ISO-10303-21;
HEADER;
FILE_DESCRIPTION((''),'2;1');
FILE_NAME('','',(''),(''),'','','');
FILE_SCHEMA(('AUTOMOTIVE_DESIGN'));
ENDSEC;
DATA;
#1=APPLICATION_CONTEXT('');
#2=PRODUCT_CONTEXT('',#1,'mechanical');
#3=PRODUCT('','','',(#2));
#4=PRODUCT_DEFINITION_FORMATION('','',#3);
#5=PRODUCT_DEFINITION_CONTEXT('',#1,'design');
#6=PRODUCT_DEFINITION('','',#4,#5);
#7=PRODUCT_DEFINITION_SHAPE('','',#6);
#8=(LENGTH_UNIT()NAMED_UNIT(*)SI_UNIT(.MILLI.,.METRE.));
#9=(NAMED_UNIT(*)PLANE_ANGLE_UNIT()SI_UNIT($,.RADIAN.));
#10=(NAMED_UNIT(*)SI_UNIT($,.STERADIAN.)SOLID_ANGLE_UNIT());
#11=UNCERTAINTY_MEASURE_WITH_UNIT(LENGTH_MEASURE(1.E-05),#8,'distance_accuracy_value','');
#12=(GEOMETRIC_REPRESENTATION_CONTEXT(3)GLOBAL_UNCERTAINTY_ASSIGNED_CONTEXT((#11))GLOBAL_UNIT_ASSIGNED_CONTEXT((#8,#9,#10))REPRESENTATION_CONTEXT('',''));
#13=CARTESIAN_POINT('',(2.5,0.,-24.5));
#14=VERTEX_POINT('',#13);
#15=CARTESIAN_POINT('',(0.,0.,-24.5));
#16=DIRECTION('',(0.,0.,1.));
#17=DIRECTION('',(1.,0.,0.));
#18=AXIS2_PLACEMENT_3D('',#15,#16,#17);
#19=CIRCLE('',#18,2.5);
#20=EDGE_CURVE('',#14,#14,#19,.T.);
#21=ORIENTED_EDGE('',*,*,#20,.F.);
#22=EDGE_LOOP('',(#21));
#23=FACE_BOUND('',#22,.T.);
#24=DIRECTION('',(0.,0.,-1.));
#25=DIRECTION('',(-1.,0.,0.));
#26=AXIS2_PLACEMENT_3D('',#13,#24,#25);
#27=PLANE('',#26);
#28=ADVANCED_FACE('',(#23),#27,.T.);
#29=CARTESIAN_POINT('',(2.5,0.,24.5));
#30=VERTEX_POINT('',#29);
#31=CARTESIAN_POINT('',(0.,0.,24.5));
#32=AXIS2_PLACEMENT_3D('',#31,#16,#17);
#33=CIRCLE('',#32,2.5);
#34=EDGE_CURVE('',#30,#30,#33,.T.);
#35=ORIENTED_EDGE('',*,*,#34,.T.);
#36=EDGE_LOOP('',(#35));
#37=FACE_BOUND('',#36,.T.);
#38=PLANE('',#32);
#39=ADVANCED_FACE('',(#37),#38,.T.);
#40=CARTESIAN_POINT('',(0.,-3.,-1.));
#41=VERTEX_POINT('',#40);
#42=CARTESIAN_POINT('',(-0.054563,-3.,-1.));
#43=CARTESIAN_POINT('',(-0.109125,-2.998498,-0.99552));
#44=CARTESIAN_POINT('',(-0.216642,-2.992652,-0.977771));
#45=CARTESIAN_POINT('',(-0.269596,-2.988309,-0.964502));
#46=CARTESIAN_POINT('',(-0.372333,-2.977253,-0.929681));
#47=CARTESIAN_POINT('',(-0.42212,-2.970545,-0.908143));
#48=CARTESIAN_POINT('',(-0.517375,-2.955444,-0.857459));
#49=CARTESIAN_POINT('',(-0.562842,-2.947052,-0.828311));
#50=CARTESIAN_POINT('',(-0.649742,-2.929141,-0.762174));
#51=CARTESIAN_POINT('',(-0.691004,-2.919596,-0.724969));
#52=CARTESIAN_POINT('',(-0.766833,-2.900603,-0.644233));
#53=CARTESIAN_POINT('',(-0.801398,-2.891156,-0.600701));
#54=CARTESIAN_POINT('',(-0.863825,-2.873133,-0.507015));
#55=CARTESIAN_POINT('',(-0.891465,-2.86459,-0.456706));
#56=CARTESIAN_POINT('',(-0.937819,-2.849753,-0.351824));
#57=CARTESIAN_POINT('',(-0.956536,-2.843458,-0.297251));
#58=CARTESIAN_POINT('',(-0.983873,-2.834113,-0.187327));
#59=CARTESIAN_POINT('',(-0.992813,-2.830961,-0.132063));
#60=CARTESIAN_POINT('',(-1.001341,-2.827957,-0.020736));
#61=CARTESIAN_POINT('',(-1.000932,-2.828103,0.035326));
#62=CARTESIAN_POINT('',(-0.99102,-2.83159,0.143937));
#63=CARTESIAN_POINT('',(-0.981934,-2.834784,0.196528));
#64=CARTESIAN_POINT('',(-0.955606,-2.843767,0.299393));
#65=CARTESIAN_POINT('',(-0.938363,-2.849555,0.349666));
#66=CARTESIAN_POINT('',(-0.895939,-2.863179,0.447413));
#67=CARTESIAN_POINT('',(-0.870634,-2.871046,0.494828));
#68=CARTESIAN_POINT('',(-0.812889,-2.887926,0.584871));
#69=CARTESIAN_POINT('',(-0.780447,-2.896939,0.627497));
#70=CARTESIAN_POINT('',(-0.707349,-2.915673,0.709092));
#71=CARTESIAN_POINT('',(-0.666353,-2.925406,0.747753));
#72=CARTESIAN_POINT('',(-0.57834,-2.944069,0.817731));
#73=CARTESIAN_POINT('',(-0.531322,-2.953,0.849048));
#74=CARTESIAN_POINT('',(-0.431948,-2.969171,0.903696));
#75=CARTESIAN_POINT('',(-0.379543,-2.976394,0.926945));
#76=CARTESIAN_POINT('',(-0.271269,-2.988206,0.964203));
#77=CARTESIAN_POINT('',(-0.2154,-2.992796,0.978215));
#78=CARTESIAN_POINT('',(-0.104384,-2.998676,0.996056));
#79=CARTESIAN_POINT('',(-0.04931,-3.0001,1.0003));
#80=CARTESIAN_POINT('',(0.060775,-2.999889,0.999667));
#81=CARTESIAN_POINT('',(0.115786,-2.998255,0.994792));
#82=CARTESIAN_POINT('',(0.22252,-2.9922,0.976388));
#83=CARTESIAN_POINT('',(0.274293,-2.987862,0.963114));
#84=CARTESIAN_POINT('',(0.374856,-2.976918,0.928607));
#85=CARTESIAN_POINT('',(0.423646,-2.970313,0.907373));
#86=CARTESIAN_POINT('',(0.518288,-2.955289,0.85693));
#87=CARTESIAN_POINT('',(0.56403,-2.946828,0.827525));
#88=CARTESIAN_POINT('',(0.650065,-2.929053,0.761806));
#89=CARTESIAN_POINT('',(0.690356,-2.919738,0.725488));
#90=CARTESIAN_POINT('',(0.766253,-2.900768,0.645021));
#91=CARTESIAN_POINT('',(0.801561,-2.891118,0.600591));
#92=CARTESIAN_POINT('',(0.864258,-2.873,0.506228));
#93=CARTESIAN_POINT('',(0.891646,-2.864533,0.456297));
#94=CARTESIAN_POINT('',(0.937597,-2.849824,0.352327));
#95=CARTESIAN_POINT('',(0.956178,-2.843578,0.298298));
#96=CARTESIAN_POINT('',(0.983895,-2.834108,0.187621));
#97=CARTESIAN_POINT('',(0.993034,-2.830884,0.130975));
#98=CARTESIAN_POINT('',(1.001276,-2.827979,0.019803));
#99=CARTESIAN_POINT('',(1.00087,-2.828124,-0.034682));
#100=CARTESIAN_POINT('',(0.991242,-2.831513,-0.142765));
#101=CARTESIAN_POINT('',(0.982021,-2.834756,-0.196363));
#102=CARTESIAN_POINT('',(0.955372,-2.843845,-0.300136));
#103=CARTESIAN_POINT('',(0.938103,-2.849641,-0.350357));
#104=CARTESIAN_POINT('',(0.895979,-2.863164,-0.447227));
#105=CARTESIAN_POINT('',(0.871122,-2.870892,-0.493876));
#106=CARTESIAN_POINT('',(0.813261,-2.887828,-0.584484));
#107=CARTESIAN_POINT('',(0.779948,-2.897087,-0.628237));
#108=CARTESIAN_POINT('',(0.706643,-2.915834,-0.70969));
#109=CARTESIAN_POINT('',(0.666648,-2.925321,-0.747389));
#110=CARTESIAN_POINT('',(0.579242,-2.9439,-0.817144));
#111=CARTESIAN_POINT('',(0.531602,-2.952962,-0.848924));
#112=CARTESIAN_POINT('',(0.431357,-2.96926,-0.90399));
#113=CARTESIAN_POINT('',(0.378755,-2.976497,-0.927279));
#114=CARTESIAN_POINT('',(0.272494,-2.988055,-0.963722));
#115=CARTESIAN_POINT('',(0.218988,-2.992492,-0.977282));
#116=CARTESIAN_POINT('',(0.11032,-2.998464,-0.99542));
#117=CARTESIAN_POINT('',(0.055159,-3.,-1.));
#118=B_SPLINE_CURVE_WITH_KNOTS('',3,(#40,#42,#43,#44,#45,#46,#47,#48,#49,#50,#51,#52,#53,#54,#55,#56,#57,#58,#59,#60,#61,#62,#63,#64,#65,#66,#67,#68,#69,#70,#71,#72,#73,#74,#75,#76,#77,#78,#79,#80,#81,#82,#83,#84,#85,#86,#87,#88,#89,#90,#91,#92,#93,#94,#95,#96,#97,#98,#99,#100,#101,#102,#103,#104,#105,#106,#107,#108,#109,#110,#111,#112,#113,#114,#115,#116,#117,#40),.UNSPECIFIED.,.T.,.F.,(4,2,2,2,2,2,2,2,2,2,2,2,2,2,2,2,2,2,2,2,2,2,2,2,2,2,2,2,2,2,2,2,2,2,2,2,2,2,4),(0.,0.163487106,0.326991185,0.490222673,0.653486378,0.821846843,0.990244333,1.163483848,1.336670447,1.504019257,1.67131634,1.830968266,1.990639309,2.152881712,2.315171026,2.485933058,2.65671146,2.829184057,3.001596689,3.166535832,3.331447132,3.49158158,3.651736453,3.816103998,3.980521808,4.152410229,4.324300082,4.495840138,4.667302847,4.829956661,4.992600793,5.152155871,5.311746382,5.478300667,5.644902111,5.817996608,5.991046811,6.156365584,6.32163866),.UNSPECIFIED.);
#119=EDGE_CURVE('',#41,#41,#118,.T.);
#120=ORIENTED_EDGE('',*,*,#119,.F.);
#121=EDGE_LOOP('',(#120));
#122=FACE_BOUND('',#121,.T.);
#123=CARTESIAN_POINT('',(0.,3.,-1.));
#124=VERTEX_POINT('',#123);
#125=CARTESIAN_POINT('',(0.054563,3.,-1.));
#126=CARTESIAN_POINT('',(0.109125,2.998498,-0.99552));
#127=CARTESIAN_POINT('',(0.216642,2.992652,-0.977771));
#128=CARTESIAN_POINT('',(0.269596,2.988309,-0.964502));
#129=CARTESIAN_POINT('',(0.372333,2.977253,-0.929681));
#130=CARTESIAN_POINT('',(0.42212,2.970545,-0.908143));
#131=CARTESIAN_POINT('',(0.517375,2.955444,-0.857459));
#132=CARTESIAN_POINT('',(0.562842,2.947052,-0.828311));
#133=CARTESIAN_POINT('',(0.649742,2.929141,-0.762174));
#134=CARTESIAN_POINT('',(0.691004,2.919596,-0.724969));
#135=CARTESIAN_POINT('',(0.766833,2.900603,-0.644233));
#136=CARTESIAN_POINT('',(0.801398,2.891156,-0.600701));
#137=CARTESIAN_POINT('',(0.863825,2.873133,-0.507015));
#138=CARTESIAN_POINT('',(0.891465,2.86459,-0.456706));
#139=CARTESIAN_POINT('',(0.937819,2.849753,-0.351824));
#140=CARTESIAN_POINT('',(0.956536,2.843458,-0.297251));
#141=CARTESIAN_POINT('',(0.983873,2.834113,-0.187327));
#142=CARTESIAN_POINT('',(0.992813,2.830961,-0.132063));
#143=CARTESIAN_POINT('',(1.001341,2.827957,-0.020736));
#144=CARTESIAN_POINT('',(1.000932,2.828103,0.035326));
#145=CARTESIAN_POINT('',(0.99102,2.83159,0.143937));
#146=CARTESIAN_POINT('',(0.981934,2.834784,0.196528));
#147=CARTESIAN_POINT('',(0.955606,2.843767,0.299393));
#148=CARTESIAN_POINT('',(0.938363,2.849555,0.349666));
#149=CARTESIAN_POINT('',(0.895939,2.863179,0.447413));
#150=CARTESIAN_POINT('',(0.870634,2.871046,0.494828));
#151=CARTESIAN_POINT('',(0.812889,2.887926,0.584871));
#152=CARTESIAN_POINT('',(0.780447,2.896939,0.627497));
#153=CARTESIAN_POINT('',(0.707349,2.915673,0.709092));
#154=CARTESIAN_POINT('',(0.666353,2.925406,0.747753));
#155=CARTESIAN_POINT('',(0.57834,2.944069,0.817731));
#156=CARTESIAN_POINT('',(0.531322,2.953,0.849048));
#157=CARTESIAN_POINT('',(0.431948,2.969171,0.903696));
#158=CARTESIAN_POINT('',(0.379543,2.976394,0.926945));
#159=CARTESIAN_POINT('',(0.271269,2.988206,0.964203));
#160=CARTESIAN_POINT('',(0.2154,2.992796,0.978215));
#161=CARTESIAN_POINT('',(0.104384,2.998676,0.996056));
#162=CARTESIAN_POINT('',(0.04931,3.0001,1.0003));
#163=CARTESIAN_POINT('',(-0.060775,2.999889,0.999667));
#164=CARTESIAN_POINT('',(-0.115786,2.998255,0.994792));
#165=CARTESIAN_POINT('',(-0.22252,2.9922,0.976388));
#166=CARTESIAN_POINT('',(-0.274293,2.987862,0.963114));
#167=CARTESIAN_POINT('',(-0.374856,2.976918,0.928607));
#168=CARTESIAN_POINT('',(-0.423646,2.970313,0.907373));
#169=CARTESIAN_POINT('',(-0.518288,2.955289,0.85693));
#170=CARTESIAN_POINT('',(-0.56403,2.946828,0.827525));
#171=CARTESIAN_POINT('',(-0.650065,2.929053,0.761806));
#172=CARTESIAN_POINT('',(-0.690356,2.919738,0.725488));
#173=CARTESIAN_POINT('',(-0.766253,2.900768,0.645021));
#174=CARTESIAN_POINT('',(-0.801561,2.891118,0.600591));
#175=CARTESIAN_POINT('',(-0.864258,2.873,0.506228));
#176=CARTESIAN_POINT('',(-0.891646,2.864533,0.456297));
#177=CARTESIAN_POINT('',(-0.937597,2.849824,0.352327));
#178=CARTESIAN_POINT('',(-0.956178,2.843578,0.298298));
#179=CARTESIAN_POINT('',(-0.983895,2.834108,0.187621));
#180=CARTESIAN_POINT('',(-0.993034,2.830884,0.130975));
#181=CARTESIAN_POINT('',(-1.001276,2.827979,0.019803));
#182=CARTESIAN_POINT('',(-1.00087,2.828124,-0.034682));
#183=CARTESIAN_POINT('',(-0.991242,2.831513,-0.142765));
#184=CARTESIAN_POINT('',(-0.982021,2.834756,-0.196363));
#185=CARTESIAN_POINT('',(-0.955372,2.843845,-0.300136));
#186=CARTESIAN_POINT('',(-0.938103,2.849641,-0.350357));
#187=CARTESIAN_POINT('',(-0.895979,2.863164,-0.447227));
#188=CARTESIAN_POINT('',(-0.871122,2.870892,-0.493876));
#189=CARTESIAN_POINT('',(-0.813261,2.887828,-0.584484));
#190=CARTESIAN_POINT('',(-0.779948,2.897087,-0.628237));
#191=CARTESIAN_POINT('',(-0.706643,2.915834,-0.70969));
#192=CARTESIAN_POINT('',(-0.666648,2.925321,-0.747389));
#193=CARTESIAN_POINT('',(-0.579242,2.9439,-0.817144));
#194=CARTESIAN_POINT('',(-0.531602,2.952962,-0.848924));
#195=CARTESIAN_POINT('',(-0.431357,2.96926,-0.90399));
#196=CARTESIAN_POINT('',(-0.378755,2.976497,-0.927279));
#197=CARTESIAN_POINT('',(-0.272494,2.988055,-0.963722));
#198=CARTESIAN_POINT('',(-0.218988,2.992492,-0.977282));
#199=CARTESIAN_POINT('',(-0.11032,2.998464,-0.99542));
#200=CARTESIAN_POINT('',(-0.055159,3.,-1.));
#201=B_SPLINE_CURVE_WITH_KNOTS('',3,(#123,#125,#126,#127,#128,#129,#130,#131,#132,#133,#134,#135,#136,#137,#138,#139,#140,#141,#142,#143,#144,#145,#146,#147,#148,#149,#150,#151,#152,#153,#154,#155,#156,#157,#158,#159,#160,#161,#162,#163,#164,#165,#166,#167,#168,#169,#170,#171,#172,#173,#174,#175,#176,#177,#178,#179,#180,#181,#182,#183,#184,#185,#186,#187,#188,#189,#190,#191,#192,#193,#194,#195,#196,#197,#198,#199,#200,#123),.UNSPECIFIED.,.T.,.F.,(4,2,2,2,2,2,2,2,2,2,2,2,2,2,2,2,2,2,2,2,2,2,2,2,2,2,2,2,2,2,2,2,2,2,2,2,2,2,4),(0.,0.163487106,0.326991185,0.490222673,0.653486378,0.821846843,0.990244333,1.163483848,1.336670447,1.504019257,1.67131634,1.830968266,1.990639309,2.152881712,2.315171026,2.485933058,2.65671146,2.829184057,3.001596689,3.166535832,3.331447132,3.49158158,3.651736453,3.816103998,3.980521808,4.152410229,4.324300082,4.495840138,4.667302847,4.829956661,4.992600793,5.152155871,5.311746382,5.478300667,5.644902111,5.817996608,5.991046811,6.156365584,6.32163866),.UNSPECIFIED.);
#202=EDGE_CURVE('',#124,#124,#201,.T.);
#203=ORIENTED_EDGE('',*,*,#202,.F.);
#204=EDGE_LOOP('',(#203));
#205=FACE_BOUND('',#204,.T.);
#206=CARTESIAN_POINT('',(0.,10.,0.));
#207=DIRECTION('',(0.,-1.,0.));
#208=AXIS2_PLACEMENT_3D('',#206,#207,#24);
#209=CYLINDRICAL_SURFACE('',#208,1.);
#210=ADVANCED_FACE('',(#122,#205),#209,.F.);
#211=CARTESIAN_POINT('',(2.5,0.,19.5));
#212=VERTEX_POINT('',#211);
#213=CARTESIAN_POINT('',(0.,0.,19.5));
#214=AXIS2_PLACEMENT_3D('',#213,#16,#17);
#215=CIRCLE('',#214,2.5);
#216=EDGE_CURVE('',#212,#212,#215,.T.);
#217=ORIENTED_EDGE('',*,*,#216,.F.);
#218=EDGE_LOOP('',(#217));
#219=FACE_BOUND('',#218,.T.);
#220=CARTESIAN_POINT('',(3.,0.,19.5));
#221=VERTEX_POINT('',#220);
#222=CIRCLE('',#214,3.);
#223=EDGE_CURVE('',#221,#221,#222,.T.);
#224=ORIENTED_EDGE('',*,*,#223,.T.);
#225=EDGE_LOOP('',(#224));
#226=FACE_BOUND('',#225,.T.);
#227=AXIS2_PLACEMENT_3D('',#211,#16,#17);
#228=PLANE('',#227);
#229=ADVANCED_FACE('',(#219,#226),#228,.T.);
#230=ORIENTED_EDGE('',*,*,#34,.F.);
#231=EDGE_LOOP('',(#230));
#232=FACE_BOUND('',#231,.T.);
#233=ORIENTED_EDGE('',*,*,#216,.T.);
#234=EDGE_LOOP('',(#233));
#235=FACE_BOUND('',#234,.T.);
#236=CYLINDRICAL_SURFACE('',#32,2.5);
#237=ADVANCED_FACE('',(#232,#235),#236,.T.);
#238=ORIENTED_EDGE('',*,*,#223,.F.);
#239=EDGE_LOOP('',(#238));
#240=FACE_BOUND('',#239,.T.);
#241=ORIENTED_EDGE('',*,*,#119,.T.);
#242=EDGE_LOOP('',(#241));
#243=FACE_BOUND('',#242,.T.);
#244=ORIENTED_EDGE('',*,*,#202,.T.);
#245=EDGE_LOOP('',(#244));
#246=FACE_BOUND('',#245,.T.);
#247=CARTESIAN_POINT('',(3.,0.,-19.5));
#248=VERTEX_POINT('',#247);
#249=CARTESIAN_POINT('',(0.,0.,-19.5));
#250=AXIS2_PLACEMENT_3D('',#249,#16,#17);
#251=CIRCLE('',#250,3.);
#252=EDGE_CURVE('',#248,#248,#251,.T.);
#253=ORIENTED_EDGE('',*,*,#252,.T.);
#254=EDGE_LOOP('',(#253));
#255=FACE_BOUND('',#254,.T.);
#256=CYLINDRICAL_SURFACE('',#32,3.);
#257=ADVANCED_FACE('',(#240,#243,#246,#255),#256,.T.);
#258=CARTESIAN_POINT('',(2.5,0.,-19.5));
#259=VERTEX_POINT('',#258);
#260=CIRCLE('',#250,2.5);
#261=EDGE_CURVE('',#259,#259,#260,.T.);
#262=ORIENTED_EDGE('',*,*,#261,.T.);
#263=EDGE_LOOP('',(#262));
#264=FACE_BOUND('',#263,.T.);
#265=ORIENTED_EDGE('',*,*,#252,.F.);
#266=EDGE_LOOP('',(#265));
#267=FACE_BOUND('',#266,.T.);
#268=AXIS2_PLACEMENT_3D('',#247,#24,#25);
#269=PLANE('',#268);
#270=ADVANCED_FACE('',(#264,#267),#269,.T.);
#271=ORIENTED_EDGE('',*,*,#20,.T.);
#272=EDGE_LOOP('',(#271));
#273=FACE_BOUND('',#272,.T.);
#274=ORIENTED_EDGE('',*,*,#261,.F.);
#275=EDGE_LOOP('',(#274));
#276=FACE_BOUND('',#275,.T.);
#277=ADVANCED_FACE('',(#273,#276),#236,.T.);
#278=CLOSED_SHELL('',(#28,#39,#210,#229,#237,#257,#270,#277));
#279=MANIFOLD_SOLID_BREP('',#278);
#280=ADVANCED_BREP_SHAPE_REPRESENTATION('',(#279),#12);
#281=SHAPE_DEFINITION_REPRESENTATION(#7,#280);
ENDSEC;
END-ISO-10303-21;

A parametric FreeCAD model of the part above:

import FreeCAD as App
import Part
import Sketcher
Q = App.Units.Quantity


def add_polygon(sketch, points):
    """Adds a closed chain of lines whose ends are joined by coincident constraints."""
    first, n = sketch.GeometryCount, len(points)
    for a, b in zip(points, points[1:] + points[:1]):
        sketch.addGeometry(Part.LineSegment(App.Vector(*a, 0), App.Vector(*b, 0)), False)
    for i in range(n):
        sketch.addConstraint(Sketcher.Constraint("Coincident", first + i, 2, first + (i + 1) % n, 1))

doc = App.newDocument("Part")
body = doc.addObject("PartDesign::Body", "Body")

# Sketch on XZ plane
sketch1 = body.newObject("Sketcher::SketchObject", "Sketch")
sketch1.AttachmentSupport = (doc.getObject("XZ_Plane"), [""])
sketch1.MapMode = "FlatFace"
add_polygon(sketch1, [(0, 24.5), (2.5, 24.5), (2.5, 19.5), (3, 19.5), (3, -19.5), (2.5, -19.5), (2.5, -24.5), (0, -24.5)])  # lines 0-7
sketch1.addConstraint([
    Sketcher.Constraint("Horizontal", 0),
    Sketcher.Constraint("Vertical", 1),
    Sketcher.Constraint("Horizontal", 2),
    Sketcher.Constraint("Vertical", 3),
    Sketcher.Constraint("Horizontal", 4),
    Sketcher.Constraint("Vertical", 5),
    Sketcher.Constraint("Horizontal", 6),
    Sketcher.Constraint("Vertical", 7),
    Sketcher.Constraint("Symmetric", 6, 2, 7, 2, -1, 1),
    Sketcher.Constraint("Symmetric", 1, 2, 4, 2, -1),
    Sketcher.Constraint("DistanceY", 1, 2, 1, 1, Q("5 mm")),
    Sketcher.Constraint("DistanceY", 3, 2, 3, 1, Q("39 mm")),
    Sketcher.Constraint("DistanceX", 0, 1, 0, 2, Q("2.5 mm")),
    Sketcher.Constraint("DistanceX", 2, 1, 2, 2, Q("0.5 mm")),
])
revolution = body.newObject("PartDesign::Revolution", "Revolution")
revolution.Profile = sketch1
revolution.ReferenceAxis = (sketch1, ["V_Axis"])
revolution.Angle = 360

# Sketch on XZ plane
sketch2 = body.newObject("Sketcher::SketchObject", "Sketch001")
sketch2.AttachmentSupport = (doc.getObject("XZ_Plane"), [""])
sketch2.MapMode = "FlatFace"
sketch2.addGeometry(Part.Circle(App.Vector(0, 0, 0), App.Vector(0, 0, 1), 1), False)
sketch2.addConstraint([
    Sketcher.Constraint("Coincident", 0, 3, -1, 1),
    Sketcher.Constraint("Diameter", 0, Q("2 mm")),
])
pocket1 = body.newObject("PartDesign::Pocket", "Pocket")
pocket1.Profile = sketch2
pocket1.Type = "ThroughAll"
pocket1.Midplane = True

doc.recompute()
